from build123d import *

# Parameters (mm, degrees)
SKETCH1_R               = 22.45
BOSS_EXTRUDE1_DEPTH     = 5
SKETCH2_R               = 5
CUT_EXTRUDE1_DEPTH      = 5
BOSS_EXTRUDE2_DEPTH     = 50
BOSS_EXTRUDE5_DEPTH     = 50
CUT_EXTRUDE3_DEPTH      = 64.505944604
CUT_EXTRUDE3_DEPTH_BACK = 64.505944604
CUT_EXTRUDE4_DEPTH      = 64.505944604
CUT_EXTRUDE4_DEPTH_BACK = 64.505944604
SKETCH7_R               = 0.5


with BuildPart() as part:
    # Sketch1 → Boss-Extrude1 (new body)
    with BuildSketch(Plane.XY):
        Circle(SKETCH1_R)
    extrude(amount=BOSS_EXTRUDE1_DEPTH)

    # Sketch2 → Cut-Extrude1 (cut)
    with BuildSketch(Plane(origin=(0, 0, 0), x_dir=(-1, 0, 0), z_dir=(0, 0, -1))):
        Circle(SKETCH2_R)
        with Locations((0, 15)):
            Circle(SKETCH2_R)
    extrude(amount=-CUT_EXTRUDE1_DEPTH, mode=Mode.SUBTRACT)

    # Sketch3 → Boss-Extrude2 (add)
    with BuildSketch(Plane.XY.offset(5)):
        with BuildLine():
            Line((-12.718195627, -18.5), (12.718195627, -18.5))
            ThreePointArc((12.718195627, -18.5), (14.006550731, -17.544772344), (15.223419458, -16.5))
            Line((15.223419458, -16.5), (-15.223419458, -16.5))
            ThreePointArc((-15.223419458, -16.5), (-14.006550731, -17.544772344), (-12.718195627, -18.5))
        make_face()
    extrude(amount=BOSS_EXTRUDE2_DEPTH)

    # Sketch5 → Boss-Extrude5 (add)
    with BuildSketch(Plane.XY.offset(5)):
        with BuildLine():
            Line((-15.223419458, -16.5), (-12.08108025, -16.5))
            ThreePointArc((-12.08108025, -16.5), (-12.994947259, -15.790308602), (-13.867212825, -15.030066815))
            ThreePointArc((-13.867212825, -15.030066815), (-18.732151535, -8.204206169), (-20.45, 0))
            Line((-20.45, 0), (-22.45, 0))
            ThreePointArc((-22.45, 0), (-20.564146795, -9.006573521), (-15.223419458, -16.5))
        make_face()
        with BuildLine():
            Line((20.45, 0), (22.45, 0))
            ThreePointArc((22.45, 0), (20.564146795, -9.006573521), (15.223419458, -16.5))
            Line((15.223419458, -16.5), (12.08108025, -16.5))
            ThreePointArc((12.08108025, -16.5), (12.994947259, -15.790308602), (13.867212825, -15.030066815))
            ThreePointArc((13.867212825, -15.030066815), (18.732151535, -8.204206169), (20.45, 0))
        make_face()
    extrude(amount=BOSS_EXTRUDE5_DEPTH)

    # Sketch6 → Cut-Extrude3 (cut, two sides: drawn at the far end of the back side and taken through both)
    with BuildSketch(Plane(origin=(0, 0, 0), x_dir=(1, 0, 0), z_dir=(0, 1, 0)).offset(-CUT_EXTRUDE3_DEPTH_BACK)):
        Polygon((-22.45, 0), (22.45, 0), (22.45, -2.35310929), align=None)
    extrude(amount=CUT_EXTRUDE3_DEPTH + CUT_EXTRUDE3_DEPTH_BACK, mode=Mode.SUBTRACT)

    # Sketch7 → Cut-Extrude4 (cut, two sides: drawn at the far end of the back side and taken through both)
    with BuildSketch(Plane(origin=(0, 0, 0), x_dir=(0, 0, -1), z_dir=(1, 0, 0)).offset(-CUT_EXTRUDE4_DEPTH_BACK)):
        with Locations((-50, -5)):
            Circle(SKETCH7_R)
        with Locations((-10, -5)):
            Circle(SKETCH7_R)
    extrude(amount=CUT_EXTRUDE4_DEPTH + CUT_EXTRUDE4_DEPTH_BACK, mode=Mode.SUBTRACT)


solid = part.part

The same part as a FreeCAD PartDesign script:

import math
import FreeCAD as App
import Part
import Sketcher
from FreeCAD import Vector
Q = App.Units.Quantity


def add_polygon(sketch, points):
    """Adds a closed chain of lines whose ends are joined by coincident constraints."""
    first, n = sketch.GeometryCount, len(points)
    for a, b in zip(points, points[1:] + points[:1]):
        sketch.addGeometry(Part.LineSegment(App.Vector(*a, 0), App.Vector(*b, 0)), False)
    for i in range(n):
        sketch.addConstraint(Sketcher.Constraint("Coincident", first + i, 2, first + (i + 1) % n, 1))

doc = App.newDocument("Part")
body = doc.addObject("PartDesign::Body", "Body")

# Sketch on XY plane
sketch1 = doc.addObject("Sketcher::SketchObject", "Sketch")
body.addObject(sketch1)
sketch1.AttachmentSupport = (doc.XY_Plane, [""])
sketch1.MapMode = "FlatFace"
sketch1.addGeometry(Part.Circle(Vector(0, 0, 0), Vector(0, 0, 1), 22), False)
sketch1.addConstraint(Sketcher.Constraint("Coincident", 0, 3, -1, 1))
sketch1.addConstraint(Sketcher.Constraint("Diameter", 0, 44.9))
pad1 = doc.addObject("PartDesign::Pad", "Pad")
body.addObject(pad1)
pad1.Profile = sketch1
pad1.Length = 5

# Sketch on XY plane
sketch2 = doc.addObject("Sketcher::SketchObject", "Sketch001")
body.addObject(sketch2)
sketch2.AttachmentSupport = (doc.XY_Plane, [""])
sketch2.MapMode = "FlatFace"
sketch2.addGeometry(Part.Circle(Vector(0, 0, 0), Vector(0, 0, 1), 5), False)
sketch2.addGeometry(Part.Circle(Vector(0, 15, 0), Vector(0, 0, 1), 5), False)
sketch2.addConstraint(Sketcher.Constraint("Coincident", 0, 3, -1, 1))
sketch2.addConstraint(Sketcher.Constraint("Equal", 0, 1))
sketch2.addConstraint(Sketcher.Constraint("PointOnObject", 1, 3, -2))
sketch2.addConstraint(Sketcher.Constraint("Diameter", 0, 10.0))
sketch2.addConstraint(Sketcher.Constraint("DistanceY", -1, 1, 1, 3, 15.0))
pocket1 = doc.addObject("PartDesign::Pocket", "Pocket")
body.addObject(pocket1)
pocket1.Profile = sketch2
pocket1.Length = 5
pocket1.Reversed = True

# Sketch on XY plane
sketch3 = doc.addObject("Sketcher::SketchObject", "Sketch002")
body.addObject(sketch3)
sketch3.AttachmentSupport = (doc.XY_Plane, [""])
sketch3.MapMode = "FlatFace"
sketch3.AttachmentOffset = App.Placement(Vector(0, 0, 5), App.Rotation())
sketch3.addGeometry(Part.LineSegment(Vector(-12.7, -18.5, 0), Vector(12.7, -18.5, 0)), False)
sketch3.addGeometry(Part.ArcOfCircle(Part.Circle(Vector(0, 0, 0), Vector(0, 0, 1), 22.5), math.radians(-55.49), math.radians(-47.3)), False)
sketch3.addGeometry(Part.LineSegment(Vector(15.2, -16.5, 0), Vector(-15.2, -16.5, 0)), False)
sketch3.addGeometry(Part.ArcOfCircle(Part.Circle(Vector(0, 0, 0), Vector(0, 0, 1), 22.5), math.radians(-132.7), math.radians(-124.51)), False)
sketch3.addConstraint(Sketcher.Constraint("Coincident", 0, 2, 1, 1))
sketch3.addConstraint(Sketcher.Constraint("Coincident", 1, 2, 2, 1))
sketch3.addConstraint(Sketcher.Constraint("Coincident", 2, 2, 3, 1))
sketch3.addConstraint(Sketcher.Constraint("Coincident", 3, 2, 0, 1))
sketch3.addConstraint(Sketcher.Constraint("Horizontal", 0))
sketch3.addConstraint(Sketcher.Constraint("Horizontal", 2))
sketch3.addConstraint(Sketcher.Constraint("Coincident", 1, 3, -1, 1))
sketch3.addConstraint(Sketcher.Constraint("Coincident", 3, 3, -1, 1))
sketch3.addConstraint(Sketcher.Constraint("Equal", 1, 3))
sketch3.addConstraint(Sketcher.Constraint("Radius", 1, 22.45))
sketch3.addConstraint(Sketcher.Constraint("DistanceY", 0, 2, 1, 2, 2.0))
sketch3.addConstraint(Sketcher.Constraint("DistanceY", 0, 2, -1, 1, 18.5))
pad2 = doc.addObject("PartDesign::Pad", "Pad001")
body.addObject(pad2)
pad2.Profile = sketch3
pad2.Length = 50

# Sketch on XY plane
sketch4 = doc.addObject("Sketcher::SketchObject", "Sketch003")
body.addObject(sketch4)
sketch4.AttachmentSupport = (doc.XY_Plane, [""])
sketch4.MapMode = "FlatFace"
sketch4.AttachmentOffset = App.Placement(Vector(0, 0, 5), App.Rotation())
sketch4.addGeometry(Part.LineSegment(Vector(-15.2, -16.5, 0), Vector(-12.1, -16.5, 0)), False)
sketch4.addGeometry(Part.ArcOfCircle(Part.Circle(Vector(0, 0, 0), Vector(0, 0, 1), 20.4), math.radians(-132.7), math.radians(-126.21)), False)
sketch4.addGeometry(Part.ArcOfCircle(Part.Circle(Vector(0, 0, 0), Vector(0, 0, 1), 20.5), math.radians(-180), math.radians(-133)), False)
sketch4.addGeometry(Part.LineSegment(Vector(-20.4, 0, 0), Vector(-22.4, 0, 0)), False)
sketch4.addGeometry(Part.ArcOfCircle(Part.Circle(Vector(0, 0, 0), Vector(0, 0, 1), 22.4), math.radians(180), math.radians(227)), False)
sketch4.addGeometry(Part.LineSegment(Vector(22.4, 0, 0), Vector(20.4, 0, 0)), False)
sketch4.addGeometry(Part.ArcOfCircle(Part.Circle(Vector(0, 0, 0), Vector(0, 0, 1), 20.5), math.radians(-47), math.radians(0)), False)
sketch4.addGeometry(Part.ArcOfCircle(Part.Circle(Vector(0, 0, 0), Vector(0, 0, 1), 20.4), math.radians(-53.79), math.radians(-47.3)), False)
sketch4.addGeometry(Part.LineSegment(Vector(12.1, -16.5, 0), Vector(15.2, -16.5, 0)), False)
sketch4.addGeometry(Part.ArcOfCircle(Part.Circle(Vector(0, 0, 0), Vector(0, 0, 1), 22.4), math.radians(-47), math.radians(0)), False)
sketch4.addConstraint(Sketcher.Constraint("Coincident", 0, 2, 1, 2))
sketch4.addConstraint(Sketcher.Constraint("Tangent", 1, 1, 2, 2))
sketch4.addConstraint(Sketcher.Constraint("Coincident", 2, 1, 3, 1))
sketch4.addConstraint(Sketcher.Constraint("Coincident", 3, 2, 4, 1))
sketch4.addConstraint(Sketcher.Constraint("Coincident", 4, 2, 0, 1))
sketch4.addConstraint(Sketcher.Constraint("Coincident", 5, 2, 6, 2))
sketch4.addConstraint(Sketcher.Constraint("Tangent", 6, 1, 7, 2))
sketch4.addConstraint(Sketcher.Constraint("Coincident", 7, 1, 8, 1))
sketch4.addConstraint(Sketcher.Constraint("Coincident", 8, 2, 9, 1))
sketch4.addConstraint(Sketcher.Constraint("Coincident", 9, 2, 5, 1))
sketch4.addConstraint(Sketcher.Constraint("Horizontal", 0))
sketch4.addConstraint(Sketcher.Constraint("Horizontal", 3))
sketch4.addConstraint(Sketcher.Constraint("Horizontal", 5))
sketch4.addConstraint(Sketcher.Constraint("Horizontal", 8))
sketch4.addConstraint(Sketcher.Constraint("Coincident", 1, 3, -1, 1))
sketch4.addConstraint(Sketcher.Constraint("Coincident", 4, 3, -1, 1))
sketch4.addConstraint(Sketcher.Constraint("Coincident", 6, 3, -1, 1))
sketch4.addConstraint(Sketcher.Constraint("Coincident", 9, 3, -1, 1))
sketch4.addConstraint(Sketcher.Constraint("Equal", 1, 2))
sketch4.addConstraint(Sketcher.Constraint("Equal", 2, 6))
sketch4.addConstraint(Sketcher.Constraint("Equal", 6, 7))
sketch4.addConstraint(Sketcher.Constraint("Equal", 4, 9))
sketch4.addConstraint(Sketcher.Constraint("PointOnObject", 2, 1, -1))
sketch4.addConstraint(Sketcher.Constraint("PointOnObject", 5, 2, -1))
sketch4.addConstraint(Sketcher.Constraint("Horizontal", 1, 1, 6, 1))
sketch4.addConstraint(Sketcher.Constraint("Horizontal", 4, 2, 7, 1))
sketch4.addConstraint(Sketcher.Constraint("DistanceX", 3, 2, 3, 1, 2.0))
sketch4.addConstraint(Sketcher.Constraint("Radius", 1, 20.45))
sketch4.addConstraint(Sketcher.Constraint("DistanceY", 0, 2, -1, 1, 16.5))
sketch4.addConstraint(Sketcher.Constraint("DistanceX", 1, 1, -1, 1, 13.867213))
pad3 = doc.addObject("PartDesign::Pad", "Pad002")
body.addObject(pad3)
pad3.Profile = sketch4
pad3.Length = 50

# Sketch on XZ plane
sketch5 = doc.addObject("Sketcher::SketchObject", "Sketch004")
body.addObject(sketch5)
sketch5.AttachmentSupport = (doc.XZ_Plane, [""])
sketch5.MapMode = "FlatFace"
add_polygon(sketch5, [(22.4, 0), (-22.4, 0), (22.4, 2.4)])  # lines 0-2
sketch5.addConstraint(Sketcher.Constraint("Horizontal", 0))
sketch5.addConstraint(Sketcher.Constraint("Vertical", 2))
sketch5.addConstraint(Sketcher.Constraint("Symmetric", 0, 2, 2, 2, -1, 1))
sketch5.addConstraint(Sketcher.Constraint("Angle", 1, Q("3 deg")))
sketch5.addConstraint(Sketcher.Constraint("DistanceX", 0, 2, 0, 1, 44.9))
pocket2 = doc.addObject("PartDesign::Pocket", "Pocket001")
body.addObject(pocket2)
pocket2.Profile = sketch5
pocket2.Type = "ThroughAll"
pocket2.Midplane = True

# Sketch on YZ plane
sketch6 = doc.addObject("Sketcher::SketchObject", "Sketch005")
body.addObject(sketch6)
sketch6.AttachmentSupport = (doc.YZ_Plane, [""])
sketch6.MapMode = "FlatFace"
sketch6.addGeometry(Part.Circle(Vector(-5, 50, 0), Vector(0, 0, 1), 0.5), False)
sketch6.addGeometry(Part.Circle(Vector(-5, 10, 0), Vector(0, 0, 1), 0.5), False)
sketch6.addConstraint(Sketcher.Constraint("Equal", 0, 1))
sketch6.addConstraint(Sketcher.Constraint("Vertical", 0, 3, 1, 3))
sketch6.addConstraint(Sketcher.Constraint("Diameter", 0, 1.0))
sketch6.addConstraint(Sketcher.Constraint("DistanceX", 0, 3, -1, 1, 5.0))
sketch6.addConstraint(Sketcher.Constraint("DistanceY", -1, 1, 0, 3, 50.0))
sketch6.addConstraint(Sketcher.Constraint("DistanceY", -1, 1, 1, 3, 10.0))
pocket3 = doc.addObject("PartDesign::Pocket", "Pocket002")
body.addObject(pocket3)
pocket3.Profile = sketch6
pocket3.Type = "ThroughAll"
pocket3.Midplane = True

doc.recompute()
